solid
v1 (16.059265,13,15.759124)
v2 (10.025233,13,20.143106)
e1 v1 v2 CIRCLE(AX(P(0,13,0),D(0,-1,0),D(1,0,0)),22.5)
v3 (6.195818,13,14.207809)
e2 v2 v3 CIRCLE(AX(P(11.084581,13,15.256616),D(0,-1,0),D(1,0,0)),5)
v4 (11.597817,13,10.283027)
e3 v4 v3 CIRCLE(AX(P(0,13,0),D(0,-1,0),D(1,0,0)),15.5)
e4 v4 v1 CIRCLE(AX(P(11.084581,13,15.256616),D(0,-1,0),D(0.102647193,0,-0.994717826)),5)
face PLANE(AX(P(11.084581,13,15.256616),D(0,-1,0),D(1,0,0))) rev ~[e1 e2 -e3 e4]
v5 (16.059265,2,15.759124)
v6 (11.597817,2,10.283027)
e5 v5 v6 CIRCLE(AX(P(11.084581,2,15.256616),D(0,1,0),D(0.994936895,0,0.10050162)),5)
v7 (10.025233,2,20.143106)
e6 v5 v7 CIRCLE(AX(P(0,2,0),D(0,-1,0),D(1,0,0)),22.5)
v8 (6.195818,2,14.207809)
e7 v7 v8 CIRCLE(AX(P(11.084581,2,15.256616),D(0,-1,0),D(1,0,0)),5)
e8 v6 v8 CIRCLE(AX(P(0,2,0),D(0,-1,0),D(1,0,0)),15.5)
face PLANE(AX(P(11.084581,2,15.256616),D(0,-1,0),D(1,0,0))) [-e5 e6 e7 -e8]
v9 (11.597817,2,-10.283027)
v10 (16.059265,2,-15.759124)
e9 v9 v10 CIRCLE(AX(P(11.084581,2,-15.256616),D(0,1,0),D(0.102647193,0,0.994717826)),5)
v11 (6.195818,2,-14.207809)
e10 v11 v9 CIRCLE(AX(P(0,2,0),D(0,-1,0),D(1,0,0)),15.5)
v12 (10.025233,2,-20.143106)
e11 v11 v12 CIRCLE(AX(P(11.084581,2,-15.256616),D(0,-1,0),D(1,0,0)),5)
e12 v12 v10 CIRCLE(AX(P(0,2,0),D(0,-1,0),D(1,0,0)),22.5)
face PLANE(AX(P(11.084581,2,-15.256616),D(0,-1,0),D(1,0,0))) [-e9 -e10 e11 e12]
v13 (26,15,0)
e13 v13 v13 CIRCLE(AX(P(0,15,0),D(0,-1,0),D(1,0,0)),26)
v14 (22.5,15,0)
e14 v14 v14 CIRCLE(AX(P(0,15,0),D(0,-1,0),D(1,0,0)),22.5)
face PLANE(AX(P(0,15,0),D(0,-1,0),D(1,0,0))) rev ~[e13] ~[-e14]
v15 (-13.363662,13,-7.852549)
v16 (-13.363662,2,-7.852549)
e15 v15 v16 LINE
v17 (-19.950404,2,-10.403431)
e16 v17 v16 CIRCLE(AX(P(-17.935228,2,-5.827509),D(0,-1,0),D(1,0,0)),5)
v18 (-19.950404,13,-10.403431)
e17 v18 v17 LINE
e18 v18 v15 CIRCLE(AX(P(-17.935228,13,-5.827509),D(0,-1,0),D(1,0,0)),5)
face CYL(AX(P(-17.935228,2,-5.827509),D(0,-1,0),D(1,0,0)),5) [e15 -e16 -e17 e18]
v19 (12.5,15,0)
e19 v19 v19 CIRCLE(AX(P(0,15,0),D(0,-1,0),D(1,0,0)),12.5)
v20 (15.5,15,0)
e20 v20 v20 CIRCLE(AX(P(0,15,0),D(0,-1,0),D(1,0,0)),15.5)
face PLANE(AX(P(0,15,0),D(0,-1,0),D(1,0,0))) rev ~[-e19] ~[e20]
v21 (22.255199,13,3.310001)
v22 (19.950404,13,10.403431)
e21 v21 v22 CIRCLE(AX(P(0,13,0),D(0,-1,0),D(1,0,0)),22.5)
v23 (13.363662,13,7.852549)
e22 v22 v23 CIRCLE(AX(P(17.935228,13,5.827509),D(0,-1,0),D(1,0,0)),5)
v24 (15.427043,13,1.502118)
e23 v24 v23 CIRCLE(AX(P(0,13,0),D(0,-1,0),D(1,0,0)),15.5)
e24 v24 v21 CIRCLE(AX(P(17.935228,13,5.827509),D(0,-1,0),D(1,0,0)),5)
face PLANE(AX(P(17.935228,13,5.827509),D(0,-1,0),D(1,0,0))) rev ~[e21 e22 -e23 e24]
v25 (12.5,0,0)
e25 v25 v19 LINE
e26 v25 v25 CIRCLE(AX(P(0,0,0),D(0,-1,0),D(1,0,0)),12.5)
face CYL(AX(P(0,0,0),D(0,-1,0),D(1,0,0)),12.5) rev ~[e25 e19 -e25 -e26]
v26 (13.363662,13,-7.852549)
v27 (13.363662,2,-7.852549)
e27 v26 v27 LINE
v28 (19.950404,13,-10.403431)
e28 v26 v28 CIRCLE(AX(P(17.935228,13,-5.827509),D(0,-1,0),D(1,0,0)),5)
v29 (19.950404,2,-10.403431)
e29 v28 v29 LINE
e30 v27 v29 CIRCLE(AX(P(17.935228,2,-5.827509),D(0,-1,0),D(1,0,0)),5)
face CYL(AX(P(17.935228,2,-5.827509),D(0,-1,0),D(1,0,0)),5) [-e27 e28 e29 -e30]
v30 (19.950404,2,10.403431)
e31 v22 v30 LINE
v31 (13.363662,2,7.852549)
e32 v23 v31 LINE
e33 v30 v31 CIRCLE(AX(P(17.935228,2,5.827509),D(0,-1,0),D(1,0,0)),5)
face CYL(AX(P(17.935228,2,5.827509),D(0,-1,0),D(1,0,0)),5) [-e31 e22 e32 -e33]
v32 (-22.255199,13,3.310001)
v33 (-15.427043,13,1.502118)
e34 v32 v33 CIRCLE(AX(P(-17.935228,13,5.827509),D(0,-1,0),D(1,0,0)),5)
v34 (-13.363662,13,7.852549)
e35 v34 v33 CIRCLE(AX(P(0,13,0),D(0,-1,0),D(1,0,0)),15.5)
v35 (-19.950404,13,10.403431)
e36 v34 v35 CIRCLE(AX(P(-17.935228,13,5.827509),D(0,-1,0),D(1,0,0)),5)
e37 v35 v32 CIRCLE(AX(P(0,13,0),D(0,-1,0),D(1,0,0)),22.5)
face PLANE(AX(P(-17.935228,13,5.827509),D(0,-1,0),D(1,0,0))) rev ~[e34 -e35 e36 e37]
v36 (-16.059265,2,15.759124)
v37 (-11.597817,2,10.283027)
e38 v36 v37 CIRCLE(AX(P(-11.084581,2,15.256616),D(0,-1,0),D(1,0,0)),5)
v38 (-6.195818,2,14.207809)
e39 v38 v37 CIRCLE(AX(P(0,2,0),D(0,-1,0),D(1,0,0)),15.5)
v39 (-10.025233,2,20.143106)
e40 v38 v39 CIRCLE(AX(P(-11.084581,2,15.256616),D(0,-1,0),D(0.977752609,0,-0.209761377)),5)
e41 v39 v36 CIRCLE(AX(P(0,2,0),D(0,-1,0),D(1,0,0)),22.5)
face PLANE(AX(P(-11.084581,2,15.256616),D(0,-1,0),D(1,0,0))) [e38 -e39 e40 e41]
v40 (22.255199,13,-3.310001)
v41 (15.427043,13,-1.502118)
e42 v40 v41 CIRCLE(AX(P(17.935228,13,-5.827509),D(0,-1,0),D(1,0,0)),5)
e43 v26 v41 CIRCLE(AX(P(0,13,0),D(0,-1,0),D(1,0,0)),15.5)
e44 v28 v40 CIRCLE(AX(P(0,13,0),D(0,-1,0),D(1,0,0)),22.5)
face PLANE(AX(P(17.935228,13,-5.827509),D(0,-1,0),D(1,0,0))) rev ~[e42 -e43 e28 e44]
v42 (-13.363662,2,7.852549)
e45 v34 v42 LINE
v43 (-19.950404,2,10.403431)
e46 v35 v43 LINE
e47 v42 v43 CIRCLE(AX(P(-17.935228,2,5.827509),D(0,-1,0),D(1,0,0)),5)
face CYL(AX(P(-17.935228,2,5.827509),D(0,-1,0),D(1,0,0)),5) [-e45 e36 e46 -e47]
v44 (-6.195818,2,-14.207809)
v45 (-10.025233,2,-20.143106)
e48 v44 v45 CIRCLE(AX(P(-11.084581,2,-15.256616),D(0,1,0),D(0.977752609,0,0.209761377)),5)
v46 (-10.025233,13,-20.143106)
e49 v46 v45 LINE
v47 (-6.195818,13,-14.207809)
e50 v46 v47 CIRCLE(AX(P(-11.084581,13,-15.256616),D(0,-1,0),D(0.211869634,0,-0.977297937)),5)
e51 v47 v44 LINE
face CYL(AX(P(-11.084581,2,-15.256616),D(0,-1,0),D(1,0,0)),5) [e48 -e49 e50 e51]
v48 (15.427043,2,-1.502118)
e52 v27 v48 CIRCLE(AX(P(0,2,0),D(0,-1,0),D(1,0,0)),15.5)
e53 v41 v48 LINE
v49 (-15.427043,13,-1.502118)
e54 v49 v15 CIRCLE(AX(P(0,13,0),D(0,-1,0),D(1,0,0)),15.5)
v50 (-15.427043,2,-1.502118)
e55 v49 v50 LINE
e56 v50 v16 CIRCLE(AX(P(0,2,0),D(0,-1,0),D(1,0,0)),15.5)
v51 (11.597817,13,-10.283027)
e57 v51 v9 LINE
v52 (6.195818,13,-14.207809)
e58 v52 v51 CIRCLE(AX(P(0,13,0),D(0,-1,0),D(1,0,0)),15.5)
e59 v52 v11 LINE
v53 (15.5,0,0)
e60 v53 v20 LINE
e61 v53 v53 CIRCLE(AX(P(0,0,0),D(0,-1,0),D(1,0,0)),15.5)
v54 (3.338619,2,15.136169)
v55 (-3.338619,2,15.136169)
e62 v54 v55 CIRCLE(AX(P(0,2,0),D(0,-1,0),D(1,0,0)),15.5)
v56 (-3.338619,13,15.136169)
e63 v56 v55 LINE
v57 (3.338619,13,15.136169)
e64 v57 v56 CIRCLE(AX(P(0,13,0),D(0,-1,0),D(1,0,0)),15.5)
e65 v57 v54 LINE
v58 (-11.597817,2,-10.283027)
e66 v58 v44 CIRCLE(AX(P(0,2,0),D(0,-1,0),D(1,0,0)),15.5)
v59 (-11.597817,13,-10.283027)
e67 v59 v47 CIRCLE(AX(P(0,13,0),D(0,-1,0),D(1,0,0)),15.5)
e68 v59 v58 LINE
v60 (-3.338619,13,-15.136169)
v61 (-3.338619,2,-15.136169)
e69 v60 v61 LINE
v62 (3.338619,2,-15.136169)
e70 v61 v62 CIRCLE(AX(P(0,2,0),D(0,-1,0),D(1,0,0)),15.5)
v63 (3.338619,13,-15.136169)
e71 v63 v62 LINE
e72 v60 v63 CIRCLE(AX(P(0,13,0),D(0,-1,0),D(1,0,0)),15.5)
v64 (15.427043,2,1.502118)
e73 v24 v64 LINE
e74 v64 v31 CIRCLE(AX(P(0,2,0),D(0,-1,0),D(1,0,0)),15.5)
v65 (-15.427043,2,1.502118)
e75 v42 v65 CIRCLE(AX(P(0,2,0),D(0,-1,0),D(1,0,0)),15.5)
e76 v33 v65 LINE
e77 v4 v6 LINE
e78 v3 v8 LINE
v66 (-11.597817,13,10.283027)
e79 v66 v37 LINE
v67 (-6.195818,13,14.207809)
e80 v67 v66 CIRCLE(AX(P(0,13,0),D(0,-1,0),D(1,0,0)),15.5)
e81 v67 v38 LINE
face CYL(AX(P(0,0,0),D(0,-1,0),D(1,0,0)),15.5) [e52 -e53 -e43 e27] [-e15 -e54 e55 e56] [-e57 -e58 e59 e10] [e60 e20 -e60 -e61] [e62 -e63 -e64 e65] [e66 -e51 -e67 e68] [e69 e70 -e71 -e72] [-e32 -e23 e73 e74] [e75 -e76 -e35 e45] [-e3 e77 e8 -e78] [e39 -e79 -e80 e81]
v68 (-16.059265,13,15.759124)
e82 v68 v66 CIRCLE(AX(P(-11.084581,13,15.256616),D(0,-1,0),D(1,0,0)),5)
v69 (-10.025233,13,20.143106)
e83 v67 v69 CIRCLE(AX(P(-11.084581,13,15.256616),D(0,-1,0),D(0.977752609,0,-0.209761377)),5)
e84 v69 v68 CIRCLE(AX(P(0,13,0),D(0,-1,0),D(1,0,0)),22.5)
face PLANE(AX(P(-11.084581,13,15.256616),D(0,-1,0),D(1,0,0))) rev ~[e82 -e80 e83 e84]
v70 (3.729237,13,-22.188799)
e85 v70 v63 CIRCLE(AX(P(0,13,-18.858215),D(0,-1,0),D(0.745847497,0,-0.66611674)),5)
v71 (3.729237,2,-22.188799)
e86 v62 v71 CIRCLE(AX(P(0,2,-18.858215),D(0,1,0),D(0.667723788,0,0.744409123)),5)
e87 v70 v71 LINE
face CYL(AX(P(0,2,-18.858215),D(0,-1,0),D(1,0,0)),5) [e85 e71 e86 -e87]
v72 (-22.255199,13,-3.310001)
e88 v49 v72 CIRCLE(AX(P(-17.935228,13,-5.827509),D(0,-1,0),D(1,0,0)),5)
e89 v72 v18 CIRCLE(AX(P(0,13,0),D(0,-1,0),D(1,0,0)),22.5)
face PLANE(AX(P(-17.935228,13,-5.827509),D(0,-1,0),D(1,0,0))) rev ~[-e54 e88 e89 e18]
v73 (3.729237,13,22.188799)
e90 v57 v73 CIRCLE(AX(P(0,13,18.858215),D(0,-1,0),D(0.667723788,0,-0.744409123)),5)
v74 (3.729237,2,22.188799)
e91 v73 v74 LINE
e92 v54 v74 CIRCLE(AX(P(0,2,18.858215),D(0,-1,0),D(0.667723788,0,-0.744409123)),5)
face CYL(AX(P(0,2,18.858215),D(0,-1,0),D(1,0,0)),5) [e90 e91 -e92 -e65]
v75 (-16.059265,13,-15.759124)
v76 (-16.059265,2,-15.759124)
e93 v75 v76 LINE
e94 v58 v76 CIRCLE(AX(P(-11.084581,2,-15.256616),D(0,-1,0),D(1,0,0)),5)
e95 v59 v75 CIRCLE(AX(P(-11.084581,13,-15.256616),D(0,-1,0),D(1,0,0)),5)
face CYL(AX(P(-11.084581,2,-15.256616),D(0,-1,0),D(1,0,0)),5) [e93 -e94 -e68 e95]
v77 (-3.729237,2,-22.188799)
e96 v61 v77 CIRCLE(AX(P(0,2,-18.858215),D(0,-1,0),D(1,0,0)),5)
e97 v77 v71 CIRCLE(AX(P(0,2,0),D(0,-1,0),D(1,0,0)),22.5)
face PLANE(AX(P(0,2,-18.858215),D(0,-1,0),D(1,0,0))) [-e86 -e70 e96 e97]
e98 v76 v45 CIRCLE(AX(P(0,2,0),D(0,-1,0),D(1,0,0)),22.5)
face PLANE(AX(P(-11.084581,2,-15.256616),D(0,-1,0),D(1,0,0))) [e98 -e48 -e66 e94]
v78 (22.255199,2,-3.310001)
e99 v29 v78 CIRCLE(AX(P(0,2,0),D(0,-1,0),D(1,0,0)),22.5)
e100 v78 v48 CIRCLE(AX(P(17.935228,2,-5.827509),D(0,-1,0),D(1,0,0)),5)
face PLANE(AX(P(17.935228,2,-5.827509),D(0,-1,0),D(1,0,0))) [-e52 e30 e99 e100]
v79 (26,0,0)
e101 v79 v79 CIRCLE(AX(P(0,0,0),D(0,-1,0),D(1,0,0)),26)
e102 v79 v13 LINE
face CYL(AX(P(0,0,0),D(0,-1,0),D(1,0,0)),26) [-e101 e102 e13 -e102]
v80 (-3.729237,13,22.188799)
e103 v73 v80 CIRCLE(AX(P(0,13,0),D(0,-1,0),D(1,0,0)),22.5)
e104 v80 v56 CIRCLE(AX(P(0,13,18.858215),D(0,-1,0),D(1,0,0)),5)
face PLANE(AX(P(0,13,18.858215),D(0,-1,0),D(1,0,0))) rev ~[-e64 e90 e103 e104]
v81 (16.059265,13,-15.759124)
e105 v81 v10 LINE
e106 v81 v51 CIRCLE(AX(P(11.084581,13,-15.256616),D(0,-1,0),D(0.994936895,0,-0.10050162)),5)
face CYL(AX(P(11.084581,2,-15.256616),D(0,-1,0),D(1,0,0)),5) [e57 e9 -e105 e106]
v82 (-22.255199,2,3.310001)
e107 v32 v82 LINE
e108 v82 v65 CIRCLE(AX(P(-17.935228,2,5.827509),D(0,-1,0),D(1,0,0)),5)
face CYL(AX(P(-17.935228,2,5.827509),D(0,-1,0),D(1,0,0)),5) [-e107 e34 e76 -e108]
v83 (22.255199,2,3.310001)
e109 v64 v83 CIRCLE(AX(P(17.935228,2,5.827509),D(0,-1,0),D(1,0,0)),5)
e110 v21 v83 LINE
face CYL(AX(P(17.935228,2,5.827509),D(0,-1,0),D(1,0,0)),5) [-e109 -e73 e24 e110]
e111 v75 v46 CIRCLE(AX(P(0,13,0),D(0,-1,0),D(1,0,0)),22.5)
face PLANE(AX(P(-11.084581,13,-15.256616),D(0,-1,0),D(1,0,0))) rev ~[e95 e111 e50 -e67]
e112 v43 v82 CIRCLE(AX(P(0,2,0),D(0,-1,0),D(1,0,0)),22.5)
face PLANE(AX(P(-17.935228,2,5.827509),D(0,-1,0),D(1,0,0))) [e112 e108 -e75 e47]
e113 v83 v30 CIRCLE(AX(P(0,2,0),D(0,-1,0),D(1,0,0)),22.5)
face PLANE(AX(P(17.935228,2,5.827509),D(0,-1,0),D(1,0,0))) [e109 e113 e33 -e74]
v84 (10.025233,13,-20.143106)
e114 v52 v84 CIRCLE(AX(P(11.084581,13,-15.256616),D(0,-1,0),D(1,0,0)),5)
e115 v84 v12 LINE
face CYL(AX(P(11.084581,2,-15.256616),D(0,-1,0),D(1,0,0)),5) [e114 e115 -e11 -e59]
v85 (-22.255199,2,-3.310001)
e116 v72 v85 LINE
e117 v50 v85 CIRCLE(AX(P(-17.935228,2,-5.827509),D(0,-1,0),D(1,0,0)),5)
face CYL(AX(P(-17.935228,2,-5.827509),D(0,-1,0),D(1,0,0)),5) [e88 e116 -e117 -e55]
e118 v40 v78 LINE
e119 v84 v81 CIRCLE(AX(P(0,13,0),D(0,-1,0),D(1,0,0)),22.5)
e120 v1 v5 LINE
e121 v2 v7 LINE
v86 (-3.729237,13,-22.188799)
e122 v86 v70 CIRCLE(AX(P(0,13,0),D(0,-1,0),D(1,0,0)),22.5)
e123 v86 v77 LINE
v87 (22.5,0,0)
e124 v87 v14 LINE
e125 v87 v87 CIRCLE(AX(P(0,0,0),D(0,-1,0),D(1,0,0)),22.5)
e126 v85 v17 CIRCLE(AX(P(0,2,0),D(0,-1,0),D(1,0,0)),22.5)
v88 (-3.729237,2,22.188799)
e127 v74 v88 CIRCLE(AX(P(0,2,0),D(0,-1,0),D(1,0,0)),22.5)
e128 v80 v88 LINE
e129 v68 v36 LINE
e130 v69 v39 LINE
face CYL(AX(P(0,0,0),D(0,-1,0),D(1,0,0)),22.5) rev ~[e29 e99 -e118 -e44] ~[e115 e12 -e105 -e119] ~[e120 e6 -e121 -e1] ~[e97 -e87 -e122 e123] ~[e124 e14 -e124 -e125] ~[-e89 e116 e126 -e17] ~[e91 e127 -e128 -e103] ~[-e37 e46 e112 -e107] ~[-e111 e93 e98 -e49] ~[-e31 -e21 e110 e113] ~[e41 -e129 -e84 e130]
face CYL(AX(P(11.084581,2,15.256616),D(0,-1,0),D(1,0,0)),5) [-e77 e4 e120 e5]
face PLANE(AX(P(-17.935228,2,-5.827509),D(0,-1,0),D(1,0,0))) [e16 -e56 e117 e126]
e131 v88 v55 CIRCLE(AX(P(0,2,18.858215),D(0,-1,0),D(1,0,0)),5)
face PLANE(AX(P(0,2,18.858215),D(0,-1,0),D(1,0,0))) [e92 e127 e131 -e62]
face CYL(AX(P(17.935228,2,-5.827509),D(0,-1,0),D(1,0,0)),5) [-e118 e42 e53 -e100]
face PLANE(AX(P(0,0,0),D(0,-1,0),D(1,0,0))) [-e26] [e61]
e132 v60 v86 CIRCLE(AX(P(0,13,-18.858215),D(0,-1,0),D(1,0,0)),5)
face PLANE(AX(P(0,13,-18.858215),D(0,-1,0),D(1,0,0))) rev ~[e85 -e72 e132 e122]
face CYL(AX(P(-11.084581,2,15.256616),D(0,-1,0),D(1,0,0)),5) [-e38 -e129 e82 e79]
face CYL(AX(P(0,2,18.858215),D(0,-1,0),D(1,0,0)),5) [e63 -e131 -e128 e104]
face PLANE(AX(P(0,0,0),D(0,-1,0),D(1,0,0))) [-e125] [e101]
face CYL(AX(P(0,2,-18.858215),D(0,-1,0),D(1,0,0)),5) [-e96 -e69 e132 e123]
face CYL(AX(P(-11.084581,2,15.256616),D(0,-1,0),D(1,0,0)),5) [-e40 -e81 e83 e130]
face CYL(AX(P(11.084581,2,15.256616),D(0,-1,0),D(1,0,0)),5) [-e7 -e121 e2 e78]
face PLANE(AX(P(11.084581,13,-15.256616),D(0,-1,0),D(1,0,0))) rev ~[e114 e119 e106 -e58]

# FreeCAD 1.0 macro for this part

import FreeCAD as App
import Part
import Sketcher

V = App.Vector

doc = App.newDocument("Part")
body = doc.addObject("PartDesign::Body", "Body")
body.AllowCompound = True

# Sketch on XZ plane
sketch1 = body.newObject("Sketcher::SketchObject", "Sketch")
sketch1.AttachmentSupport = (doc.getObject("XZ_Plane"), [""])
sketch1.MapMode = "FlatFace"
sketch1.addGeometry([
    Part.Circle(V(0, 0, 0), V(0, 0, 1), 26),
    Part.Circle(V(0, 0, 0), V(0, 0, 1), 22),
    Part.Circle(V(0, 0, 0), V(0, 0, 1), 16),
    Part.Circle(V(0, 0, 0), V(0, 0, 1), 12),
], False)
sketch1.addConstraint([
    Sketcher.Constraint("Coincident", 0, 3, -1, 1),
    Sketcher.Constraint("Coincident", 1, 3, -1, 1),
    Sketcher.Constraint("Coincident", 2, 3, -1, 1),
    Sketcher.Constraint("Coincident", 3, 3, -1, 1),
    Sketcher.Constraint("Diameter", 0, 52.0),
    Sketcher.Constraint("Diameter", 1, 45.0),
    Sketcher.Constraint("Diameter", 2, 31.0),
    Sketcher.Constraint("Diameter", 3, 25.0),
])
pad1 = body.newObject("PartDesign::Pad", "Pad")
pad1.Profile = sketch1
pad1.Length = 15
pad1.Reversed = True

# Sketch on XZ plane
sketch2 = body.newObject("Sketcher::SketchObject", "Sketch001")
sketch2.AttachmentSupport = (doc.getObject("XZ_Plane"), [""])
sketch2.MapMode = "FlatFace"
sketch2.AttachmentOffset = App.Placement(V(0, 0, -2), App.Rotation())
sketch2.addGeometry([
    Part.Circle(V(11, 15, 0), V(0, 0, 1), 5),  # 0
    Part.Circle(V(18, 6, 0), V(0, 0, 1), 5),  # 1
    Part.Circle(V(18, -6, 0), V(0, 0, 1), 5),  # 2
    Part.Circle(V(11, -15, 0), V(0, 0, 1), 5),  # 3
    Part.Circle(V(0, -19, 0), V(0, 0, 1), 5),  # 4
    Part.Circle(V(-11, -15, 0), V(0, 0, 1), 5),  # 5
    Part.Circle(V(-18, -6, 0), V(0, 0, 1), 5),  # 6
    Part.Circle(V(-11, 15, 0), V(0, 0, 1), 5),  # 7
    Part.Circle(V(0, 19, 0), V(0, 0, 1), 5),  # 8
    Part.Circle(V(-18, 6, 0), V(0, 0, 1), 5),  # 9
], False)
sketch2.addConstraint([
    Sketcher.Constraint("Equal", 0, 1),
    Sketcher.Constraint("Equal", 1, 2),
    Sketcher.Constraint("Equal", 2, 3),
    Sketcher.Constraint("Equal", 3, 4),
    Sketcher.Constraint("Equal", 4, 5),
    Sketcher.Constraint("Equal", 5, 6),
    Sketcher.Constraint("Equal", 6, 7),
    Sketcher.Constraint("Equal", 7, 8),
    Sketcher.Constraint("Equal", 8, 9),
    Sketcher.Constraint("Symmetric", 0, 3, 5, 3, -1, 1),
    Sketcher.Constraint("Symmetric", 1, 3, 6, 3, -1, 1),
    Sketcher.Constraint("Symmetric", 3, 3, 7, 3, -1, 1),
    Sketcher.Constraint("Symmetric", 4, 3, 8, 3, -1, 1),
    Sketcher.Constraint("Symmetric", 2, 3, 9, 3, -1, 1),
    Sketcher.Constraint("Symmetric", 3, 3, 5, 3, -2),
    Sketcher.Constraint("Symmetric", 2, 3, 6, 3, -2),
    Sketcher.Constraint("PointOnObject", 4, 3, -2),
    Sketcher.Constraint("Diameter", 0, 10.0),
    Sketcher.Constraint("DistanceY", 4, 3, 3, 3, 3.601599),
    Sketcher.Constraint("DistanceX", -1, 1, 0, 3, 11.084581),
    Sketcher.Constraint("DistanceY", -1, 1, 1, 3, 5.827509),
    Sketcher.Constraint("DistanceY", 3, 3, 0, 3, 30.513232),
    Sketcher.Constraint("DistanceX", 5, 3, 2, 3, 29.019809),
])
pad2 = body.newObject("PartDesign::Pad", "Pad001")
pad2.Profile = sketch2
pad2.Length = 11
pad2.Reversed = True

doc.recompute()
